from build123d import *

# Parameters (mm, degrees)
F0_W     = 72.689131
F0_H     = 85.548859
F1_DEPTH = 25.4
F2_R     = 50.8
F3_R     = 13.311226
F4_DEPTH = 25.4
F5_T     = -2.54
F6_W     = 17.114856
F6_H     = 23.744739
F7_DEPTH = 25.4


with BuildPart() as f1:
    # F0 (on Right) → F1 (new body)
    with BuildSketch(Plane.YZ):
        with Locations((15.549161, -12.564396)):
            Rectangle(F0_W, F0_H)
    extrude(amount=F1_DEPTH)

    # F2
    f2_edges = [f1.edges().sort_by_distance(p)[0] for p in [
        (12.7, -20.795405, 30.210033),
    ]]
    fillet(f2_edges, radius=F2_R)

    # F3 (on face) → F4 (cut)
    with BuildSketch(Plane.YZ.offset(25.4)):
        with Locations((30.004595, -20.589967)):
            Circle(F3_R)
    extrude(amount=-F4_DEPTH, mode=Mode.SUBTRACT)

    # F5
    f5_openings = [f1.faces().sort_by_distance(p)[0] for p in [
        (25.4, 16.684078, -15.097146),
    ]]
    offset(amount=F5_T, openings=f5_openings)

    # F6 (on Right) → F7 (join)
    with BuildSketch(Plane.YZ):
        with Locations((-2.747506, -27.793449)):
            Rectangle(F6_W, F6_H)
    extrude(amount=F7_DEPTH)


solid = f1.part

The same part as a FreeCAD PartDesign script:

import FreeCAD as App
import Part
import Sketcher

V = App.Vector
Q = App.Units.Quantity


def edges_at(feature, points):
    """Names of the edges that pass closest to the given points."""
    edges = feature.Shape.Edges
    near = lambda p: min(range(len(edges)), key=lambda i: edges[i].distToShape(Part.Vertex(*p))[0])
    return sorted({f"Edge{near(p) + 1}" for p in points})


def faces_at(feature, points):
    """Names of the faces that lie closest to the given points."""
    faces = feature.Shape.Faces
    near = lambda p: min(range(len(faces)), key=lambda i: faces[i].distToShape(Part.Vertex(*p))[0])
    return sorted({f"Face{near(p) + 1}" for p in points})


def add_polygon(sketch, points):
    """Adds a closed chain of lines whose ends are joined by coincident constraints."""
    first, n = sketch.GeometryCount, len(points)
    for a, b in zip(points, points[1:] + points[:1]):
        sketch.addGeometry(Part.LineSegment(App.Vector(*a, 0), App.Vector(*b, 0)), False)
    for i in range(n):
        sketch.addConstraint(Sketcher.Constraint("Coincident", first + i, 2, first + (i + 1) % n, 1))

doc = App.newDocument("Part")
body = doc.addObject("PartDesign::Body", "Body")

# Sketch on YZ plane
sketch1 = body.newObject("Sketcher::SketchObject", "Sketch")
sketch1.AttachmentSupport = (doc.getObject("YZ_Plane"), [""])
sketch1.MapMode = "FlatFace"
add_polygon(sketch1, [(-21, 30), (-21, -55), (52, -55), (52, 30)])  # lines 0-3
sketch1.addConstraint([
    Sketcher.Constraint("Vertical", 0),
    Sketcher.Constraint("Horizontal", 1),
    Sketcher.Constraint("Vertical", 2),
    Sketcher.Constraint("Horizontal", 3),
    Sketcher.Constraint("DistanceX", 1, 1, 1, 2, Q("72.689131 mm")),
    Sketcher.Constraint("DistanceY", 0, 2, 0, 1, Q("85.548859 mm")),
    Sketcher.Constraint("DistanceX", 0, 2, -1, 1, Q("20.795405 mm")),
    Sketcher.Constraint("DistanceY", 0, 2, -1, 1, Q("55.338825 mm")),
])
pad1 = body.newObject("PartDesign::Pad", "Pad")
pad1.Profile = sketch1
pad1.Length = Q("1 in")
doc.recompute()

fillet = body.newObject("PartDesign::Fillet", "Fillet")
fillet.Base = (pad1, edges_at(pad1, [(12.7, -20.795, 30.21)]))
fillet.Radius = Q("2 in")

# Sketch on YZ plane
sketch2 = body.newObject("Sketcher::SketchObject", "Sketch001")
sketch2.AttachmentSupport = (doc.getObject("YZ_Plane"), [""])
sketch2.MapMode = "FlatFace"
sketch2.AttachmentOffset = App.Placement(V(0, 0, 1 * 25.4), App.Rotation())
sketch2.addGeometry(Part.Circle(V(30, -21, 0), V(0, 0, 1), 13), False)
sketch2.addConstraint([
    Sketcher.Constraint("Diameter", 0, Q("26.622452 mm")),
    Sketcher.Constraint("DistanceX", -1, 1, 0, 3, Q("30.004595 mm")),
    Sketcher.Constraint("DistanceY", 0, 3, -1, 1, Q("20.589967 mm")),
])
pocket1 = body.newObject("PartDesign::Pocket", "Pocket")
pocket1.Profile = sketch2
pocket1.Length = Q("1 in")
doc.recompute()

thickness = body.newObject("PartDesign::Thickness", "Thickness")
thickness.Base = (pocket1, faces_at(pocket1, [(25.4, 15.549, -12.564)]))
thickness.Value = Q("0.1 in")
thickness.Reversed = True
thickness.Join = "Arc"

# Sketch on YZ plane
sketch3 = body.newObject("Sketcher::SketchObject", "Sketch002")
sketch3.AttachmentSupport = (doc.getObject("YZ_Plane"), [""])
sketch3.MapMode = "FlatFace"
add_polygon(sketch3, [(-11, -16), (-11, -40), (6, -40), (6, -16)])  # lines 0-3
sketch3.addConstraint([
    Sketcher.Constraint("Vertical", 0),
    Sketcher.Constraint("Horizontal", 1),
    Sketcher.Constraint("Vertical", 2),
    Sketcher.Constraint("Horizontal", 3),
    Sketcher.Constraint("DistanceY", 0, 2, 0, 1, Q("23.744739 mm")),
    Sketcher.Constraint("DistanceX", 1, 1, 1, 2, Q("17.114856 mm")),
    Sketcher.Constraint("DistanceY", 0, 2, -1, 1, Q("39.665819 mm")),
    Sketcher.Constraint("DistanceX", 0, 2, -1, 1, Q("11.304934 mm")),
])
pad2 = body.newObject("PartDesign::Pad", "Pad001")
pad2.Profile = sketch3
pad2.Length = Q("1 in")

doc.recompute()
